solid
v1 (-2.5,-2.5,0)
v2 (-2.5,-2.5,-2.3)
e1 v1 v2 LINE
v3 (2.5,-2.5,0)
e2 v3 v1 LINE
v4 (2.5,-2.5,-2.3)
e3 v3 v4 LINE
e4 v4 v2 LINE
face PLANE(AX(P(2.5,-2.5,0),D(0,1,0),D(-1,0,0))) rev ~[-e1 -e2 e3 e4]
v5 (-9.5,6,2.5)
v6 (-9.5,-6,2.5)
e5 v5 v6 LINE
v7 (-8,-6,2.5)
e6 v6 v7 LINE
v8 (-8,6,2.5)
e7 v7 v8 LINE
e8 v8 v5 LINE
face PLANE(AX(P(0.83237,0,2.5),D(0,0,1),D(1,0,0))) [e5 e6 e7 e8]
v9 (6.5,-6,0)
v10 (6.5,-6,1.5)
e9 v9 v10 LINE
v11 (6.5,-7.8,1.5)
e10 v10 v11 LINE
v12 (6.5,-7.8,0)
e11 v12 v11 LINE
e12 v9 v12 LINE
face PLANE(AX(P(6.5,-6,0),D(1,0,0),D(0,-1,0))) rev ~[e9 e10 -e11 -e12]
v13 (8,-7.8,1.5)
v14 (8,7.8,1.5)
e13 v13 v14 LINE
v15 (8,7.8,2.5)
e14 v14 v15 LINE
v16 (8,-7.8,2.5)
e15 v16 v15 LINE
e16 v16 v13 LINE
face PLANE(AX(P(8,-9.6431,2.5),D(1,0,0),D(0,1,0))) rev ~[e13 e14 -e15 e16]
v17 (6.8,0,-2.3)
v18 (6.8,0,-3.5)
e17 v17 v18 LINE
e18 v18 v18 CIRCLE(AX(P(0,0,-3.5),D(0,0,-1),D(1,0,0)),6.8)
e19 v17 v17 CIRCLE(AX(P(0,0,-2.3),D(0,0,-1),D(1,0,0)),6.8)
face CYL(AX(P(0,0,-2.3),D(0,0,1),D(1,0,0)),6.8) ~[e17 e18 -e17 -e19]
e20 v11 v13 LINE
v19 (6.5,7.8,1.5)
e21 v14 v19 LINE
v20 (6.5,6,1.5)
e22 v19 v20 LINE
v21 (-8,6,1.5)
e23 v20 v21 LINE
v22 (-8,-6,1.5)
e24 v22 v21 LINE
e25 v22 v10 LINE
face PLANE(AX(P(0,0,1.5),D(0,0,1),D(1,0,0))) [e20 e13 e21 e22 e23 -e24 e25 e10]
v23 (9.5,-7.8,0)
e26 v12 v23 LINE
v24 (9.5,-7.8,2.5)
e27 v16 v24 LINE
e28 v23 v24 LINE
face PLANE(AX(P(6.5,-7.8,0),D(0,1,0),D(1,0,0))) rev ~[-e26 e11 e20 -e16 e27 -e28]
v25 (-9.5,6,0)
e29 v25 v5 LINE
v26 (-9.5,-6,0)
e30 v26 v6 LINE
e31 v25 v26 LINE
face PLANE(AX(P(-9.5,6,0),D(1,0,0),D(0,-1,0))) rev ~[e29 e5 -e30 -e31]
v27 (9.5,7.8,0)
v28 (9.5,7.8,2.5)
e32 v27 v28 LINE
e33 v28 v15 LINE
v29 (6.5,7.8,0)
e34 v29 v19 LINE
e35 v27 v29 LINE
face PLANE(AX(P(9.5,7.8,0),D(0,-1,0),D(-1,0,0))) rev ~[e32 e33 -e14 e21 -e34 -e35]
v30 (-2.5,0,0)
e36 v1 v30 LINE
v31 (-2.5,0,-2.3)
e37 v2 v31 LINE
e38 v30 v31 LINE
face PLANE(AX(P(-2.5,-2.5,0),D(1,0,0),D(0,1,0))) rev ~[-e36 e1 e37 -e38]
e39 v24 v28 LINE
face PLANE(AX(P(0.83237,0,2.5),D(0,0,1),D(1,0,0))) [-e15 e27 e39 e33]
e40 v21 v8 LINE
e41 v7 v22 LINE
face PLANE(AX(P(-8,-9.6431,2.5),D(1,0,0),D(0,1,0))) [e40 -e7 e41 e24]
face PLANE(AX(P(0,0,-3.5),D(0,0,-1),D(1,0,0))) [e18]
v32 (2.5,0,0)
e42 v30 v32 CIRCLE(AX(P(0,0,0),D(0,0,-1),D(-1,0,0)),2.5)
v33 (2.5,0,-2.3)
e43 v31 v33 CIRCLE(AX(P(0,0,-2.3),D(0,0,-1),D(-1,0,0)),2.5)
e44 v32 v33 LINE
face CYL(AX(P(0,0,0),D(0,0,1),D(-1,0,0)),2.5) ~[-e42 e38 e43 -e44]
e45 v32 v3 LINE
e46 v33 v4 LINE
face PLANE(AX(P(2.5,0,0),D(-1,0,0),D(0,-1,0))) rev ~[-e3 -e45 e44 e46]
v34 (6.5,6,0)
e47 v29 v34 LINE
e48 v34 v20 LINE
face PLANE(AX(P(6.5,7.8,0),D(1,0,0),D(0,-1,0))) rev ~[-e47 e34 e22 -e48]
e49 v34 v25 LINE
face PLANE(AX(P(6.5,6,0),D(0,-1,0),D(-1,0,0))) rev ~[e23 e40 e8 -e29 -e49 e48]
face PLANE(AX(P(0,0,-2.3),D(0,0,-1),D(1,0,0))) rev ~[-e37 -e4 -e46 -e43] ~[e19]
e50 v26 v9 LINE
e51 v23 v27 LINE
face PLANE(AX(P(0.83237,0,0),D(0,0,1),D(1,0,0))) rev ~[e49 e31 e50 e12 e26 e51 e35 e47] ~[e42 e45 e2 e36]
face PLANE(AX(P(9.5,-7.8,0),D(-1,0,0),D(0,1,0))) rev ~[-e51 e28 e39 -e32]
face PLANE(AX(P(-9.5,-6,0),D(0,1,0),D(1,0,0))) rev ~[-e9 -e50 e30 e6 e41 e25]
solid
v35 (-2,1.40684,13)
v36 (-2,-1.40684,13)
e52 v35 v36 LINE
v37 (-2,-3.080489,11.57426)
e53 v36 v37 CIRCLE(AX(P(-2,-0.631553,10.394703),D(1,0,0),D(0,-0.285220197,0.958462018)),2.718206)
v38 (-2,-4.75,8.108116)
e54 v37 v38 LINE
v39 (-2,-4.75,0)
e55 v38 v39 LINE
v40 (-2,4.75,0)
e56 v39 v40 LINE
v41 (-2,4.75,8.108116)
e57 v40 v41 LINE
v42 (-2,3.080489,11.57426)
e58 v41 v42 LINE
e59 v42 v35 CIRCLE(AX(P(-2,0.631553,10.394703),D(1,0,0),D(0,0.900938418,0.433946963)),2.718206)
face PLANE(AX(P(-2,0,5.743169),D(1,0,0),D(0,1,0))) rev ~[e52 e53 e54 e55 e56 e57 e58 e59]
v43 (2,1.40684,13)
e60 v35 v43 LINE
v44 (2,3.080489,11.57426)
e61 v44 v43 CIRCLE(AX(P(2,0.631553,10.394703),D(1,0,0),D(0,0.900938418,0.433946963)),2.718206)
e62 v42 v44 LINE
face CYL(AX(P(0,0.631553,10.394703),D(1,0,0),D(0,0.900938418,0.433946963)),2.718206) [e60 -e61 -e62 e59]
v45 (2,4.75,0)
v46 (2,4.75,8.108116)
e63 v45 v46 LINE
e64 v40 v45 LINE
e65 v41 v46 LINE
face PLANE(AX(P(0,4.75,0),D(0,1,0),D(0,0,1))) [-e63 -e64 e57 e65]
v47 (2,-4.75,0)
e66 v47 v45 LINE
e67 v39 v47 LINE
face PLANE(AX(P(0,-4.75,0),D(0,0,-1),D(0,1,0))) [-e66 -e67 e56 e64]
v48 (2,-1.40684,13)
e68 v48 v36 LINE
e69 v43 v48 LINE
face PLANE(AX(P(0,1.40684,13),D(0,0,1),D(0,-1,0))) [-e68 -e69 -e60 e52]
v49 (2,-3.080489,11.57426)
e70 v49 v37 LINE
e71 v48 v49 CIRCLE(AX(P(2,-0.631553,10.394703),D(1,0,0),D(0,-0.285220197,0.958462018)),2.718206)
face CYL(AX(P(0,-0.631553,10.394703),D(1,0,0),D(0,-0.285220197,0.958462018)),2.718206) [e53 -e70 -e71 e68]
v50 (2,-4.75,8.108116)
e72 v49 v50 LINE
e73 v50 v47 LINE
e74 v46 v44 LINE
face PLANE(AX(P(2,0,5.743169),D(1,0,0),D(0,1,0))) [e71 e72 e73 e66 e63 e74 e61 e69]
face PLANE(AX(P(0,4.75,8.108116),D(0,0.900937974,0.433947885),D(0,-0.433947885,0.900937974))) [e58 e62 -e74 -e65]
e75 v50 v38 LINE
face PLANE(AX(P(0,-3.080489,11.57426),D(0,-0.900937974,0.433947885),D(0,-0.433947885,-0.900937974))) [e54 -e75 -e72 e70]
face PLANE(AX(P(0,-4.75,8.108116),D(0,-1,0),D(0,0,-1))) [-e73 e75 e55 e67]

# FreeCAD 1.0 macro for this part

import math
import FreeCAD as App
import Part
import Sketcher

V = App.Vector

doc = App.newDocument("Part")
body = doc.addObject("PartDesign::Body", "Body")

# Sketch on XY plane
sketch1 = doc.addObject("Sketcher::SketchObject", "Sketch")
body.addObject(sketch1)
sketch1.AttachmentSupport = (doc.XY_Plane, [""])
sketch1.MapMode = "FlatFace"
sketch1.addGeometry([
    Part.LineSegment(V(6.5, -7.8, 0), V(9.5, -7.8, 0)),  # 0
    Part.LineSegment(V(9.5, -7.8, 0), V(9.5, 7.8, 0)),  # 1
    Part.LineSegment(V(9.5, 7.8, 0), V(6.5, 7.8, 0)),  # 2
    Part.LineSegment(V(6.5, 7.8, 0), V(6.5, 6, 0)),  # 3
    Part.LineSegment(V(6.5, 6, 0), V(-9.5, 6, 0)),  # 4
    Part.LineSegment(V(-9.5, 6, 0), V(-9.5, -6, 0)),  # 5
    Part.LineSegment(V(-9.5, -6, 0), V(6.5, -6, 0)),  # 6
    Part.LineSegment(V(6.5, -6, 0), V(6.5, -7.8, 0)),  # 7
], False)
sketch1.addConstraint([
    Sketcher.Constraint("Coincident", 0, 2, 1, 1),
    Sketcher.Constraint("Coincident", 1, 2, 2, 1),
    Sketcher.Constraint("Coincident", 2, 2, 3, 1),
    Sketcher.Constraint("Coincident", 3, 2, 4, 1),
    Sketcher.Constraint("Coincident", 4, 2, 5, 1),
    Sketcher.Constraint("Coincident", 5, 2, 6, 1),
    Sketcher.Constraint("Coincident", 6, 2, 7, 1),
    Sketcher.Constraint("Coincident", 7, 2, 0, 1),
    Sketcher.Constraint("Horizontal", 0),
    Sketcher.Constraint("Vertical", 1),
    Sketcher.Constraint("Horizontal", 2),
    Sketcher.Constraint("Vertical", 3),
    Sketcher.Constraint("Horizontal", 4),
    Sketcher.Constraint("Vertical", 5),
    Sketcher.Constraint("Horizontal", 6),
    Sketcher.Constraint("Vertical", 7),
    Sketcher.Constraint("Symmetric", 3, 2, 6, 2, -1),
    Sketcher.Constraint("Equal", 3, 7),
    Sketcher.Constraint("DistanceX", 0, 1, 0, 2, 3.0),
    Sketcher.Constraint("DistanceX", 4, 2, 4, 1, 16.0),
    Sketcher.Constraint("DistanceY", 5, 2, 5, 1, 12.0),
    Sketcher.Constraint("DistanceY", 1, 1, 1, 2, 15.6),
    Sketcher.Constraint("DistanceX", -1, 1, 0, 2, 9.5),
])
pad1 = doc.addObject("PartDesign::Pad", "Pad")
body.addObject(pad1)
pad1.Profile = sketch1
pad1.Length = 2.5

# Sketch on XY plane
sketch2 = doc.addObject("Sketcher::SketchObject", "Sketch001")
body.addObject(sketch2)
sketch2.AttachmentSupport = (doc.XY_Plane, [""])
sketch2.MapMode = "FlatFace"
sketch2.AttachmentOffset = App.Placement(V(0, 0, 2.5), App.Rotation())
sketch2.addGeometry([
    Part.LineSegment(V(-8, 10, 0), V(-8, -10, 0)),
    Part.LineSegment(V(-8, -10, 0), V(8, -10, 0)),
    Part.LineSegment(V(8, -10, 0), V(8, 10, 0)),
    Part.LineSegment(V(8, 10, 0), V(-8, 10, 0)),
], False)
sketch2.addConstraint([
    Sketcher.Constraint("Coincident", 0, 2, 1, 1),
    Sketcher.Constraint("Coincident", 1, 2, 2, 1),
    Sketcher.Constraint("Coincident", 2, 2, 3, 1),
    Sketcher.Constraint("Coincident", 3, 2, 0, 1),
    Sketcher.Constraint("Vertical", 0),
    Sketcher.Constraint("Horizontal", 1),
    Sketcher.Constraint("Vertical", 2),
    Sketcher.Constraint("Horizontal", 3),
    Sketcher.Constraint("Symmetric", 0, 2, 2, 2, -1, 1),
    Sketcher.Constraint("DistanceX", 1, 1, 1, 2, 16.0),
    Sketcher.Constraint("DistanceY", 0, 2, 0, 1, 19.2862),
])
pocket1 = doc.addObject("PartDesign::Pocket", "Pocket")
body.addObject(pocket1)
pocket1.Profile = sketch2
pocket1.Length = 1

# Sketch on XY plane
sketch3 = doc.addObject("Sketcher::SketchObject", "Sketch002")
body.addObject(sketch3)
sketch3.AttachmentSupport = (doc.XY_Plane, [""])
sketch3.MapMode = "FlatFace"
sketch3.addGeometry([
    Part.LineSegment(V(-2.5, -2.5, 0), V(-2.5, 0, 0)),
    Part.ArcOfCircle(Part.Circle(V(0, 0, 0), V(0, 0, 1), 2.5), math.radians(0), math.radians(180)),
    Part.LineSegment(V(2.5, 0, 0), V(2.5, -2.5, 0)),
    Part.LineSegment(V(2.5, -2.5, 0), V(-2.5, -2.5, 0)),
], False)
sketch3.addConstraint([
    Sketcher.Constraint("Tangent", 0, 2, 1, 2),
    Sketcher.Constraint("Tangent", 1, 1, 2, 1),
    Sketcher.Constraint("Coincident", 2, 2, 3, 1),
    Sketcher.Constraint("Coincident", 3, 2, 0, 1),
    Sketcher.Constraint("Vertical", 0),
    Sketcher.Constraint("Vertical", 2),
    Sketcher.Constraint("Horizontal", 3),
    Sketcher.Constraint("Coincident", 1, 3, -1, 1),
    Sketcher.Constraint("Radius", 1, 2.5),
    Sketcher.Constraint("DistanceY", 0, 1, 0, 2, 2.5),
])
pad2 = doc.addObject("PartDesign::Pad", "Pad001")
body.addObject(pad2)
pad2.Profile = sketch3
pad2.Length = 2.3
pad2.Reversed = True

# Sketch on XY plane
sketch4 = doc.addObject("Sketcher::SketchObject", "Sketch003")
body.addObject(sketch4)
sketch4.AttachmentSupport = (doc.XY_Plane, [""])
sketch4.MapMode = "FlatFace"
sketch4.AttachmentOffset = App.Placement(V(0, 0, -2.3), App.Rotation())
sketch4.addGeometry(Part.Circle(V(0, 0, 0), V(0, 0, 1), 7), False)
sketch4.addConstraint([
    Sketcher.Constraint("Coincident", 0, 3, -1, 1),
    Sketcher.Constraint("Diameter", 0, 13.6),
])
pad3 = doc.addObject("PartDesign::Pad", "Pad002")
body.addObject(pad3)
pad3.Profile = sketch4
pad3.Length = 1.2
pad3.Reversed = True
body2 = doc.addObject("PartDesign::Body", "Body001")

# Sketch on YZ plane
sketch5 = doc.addObject("Sketcher::SketchObject", "Sketch004")
body2.addObject(sketch5)
sketch5.AttachmentSupport = (doc.getObject("YZ_Plane001"), [""])
sketch5.MapMode = "FlatFace"
sketch5.addGeometry([
    Part.LineSegment(V(-4.8, 8.1, 0), V(-4.8, 0, 0)),  # 0
    Part.LineSegment(V(-4.8, 0, 0), V(4.8, 0, 0)),  # 1
    Part.LineSegment(V(4.8, 0, 0), V(4.8, 8.1, 0)),  # 2
    Part.LineSegment(V(4.8, 8.1, 0), V(3.1, 11.6, 0)),  # 3
    Part.ArcOfCircle(Part.Circle(V(0.6, 10.4, 0), V(0, 0, 1), 2.7), math.radians(26), math.radians(73)),  # 4
    Part.LineSegment(V(1.4, 13, 0), V(-1.4, 13, 0)),  # 5
    Part.ArcOfCircle(Part.Circle(V(-0.6, 10.4, 0), V(0, 0, 1), 2.7), math.radians(107), math.radians(154)),  # 6
    Part.LineSegment(V(-3.1, 11.6, 0), V(-4.8, 8.1, 0)),  # 7
], False)
sketch5.addConstraint([
    Sketcher.Constraint("Coincident", 0, 2, 1, 1),
    Sketcher.Constraint("Coincident", 1, 2, 2, 1),
    Sketcher.Constraint("Coincident", 2, 2, 3, 1),
    Sketcher.Constraint("Tangent", 3, 2, 4, 1),
    Sketcher.Constraint("Coincident", 4, 2, 5, 1),
    Sketcher.Constraint("Coincident", 5, 2, 6, 1),
    Sketcher.Constraint("Tangent", 6, 2, 7, 1),
    Sketcher.Constraint("Coincident", 7, 2, 0, 1),
    Sketcher.Constraint("Vertical", 0),
    Sketcher.Constraint("Horizontal", 1),
    Sketcher.Constraint("Vertical", 2),
    Sketcher.Constraint("Horizontal", 5),
    Sketcher.Constraint("Equal", 4, 6),
    Sketcher.Constraint("Symmetric", 0, 2, 1, 2, -1, 1),
    Sketcher.Constraint("Symmetric", 4, 3, 6, 3, -2),
    Sketcher.Constraint("Horizontal", 3, 2, 6, 2),
    Sketcher.Constraint("DistanceX", 1, 1, 1, 2, 9.5),
    Sketcher.Constraint("DistanceY", -1, 1, 4, 2, 13.0),
    Sketcher.Constraint("Radius", 4, 2.718206),
    Sketcher.Constraint("DistanceX", 5, 2, 5, 1, 2.81368),
    Sketcher.Constraint("Distance", 3, 3.847262),
    Sketcher.Constraint("DistanceY", 0, 2, 0, 1, 8.108116),
])
pad4 = doc.addObject("PartDesign::Pad", "Pad003")
body2.addObject(pad4)
pad4.Profile = sketch5
pad4.Type = "TwoLengths"
pad4.Length = 2
pad4.Length2 = 2

doc.recompute()
